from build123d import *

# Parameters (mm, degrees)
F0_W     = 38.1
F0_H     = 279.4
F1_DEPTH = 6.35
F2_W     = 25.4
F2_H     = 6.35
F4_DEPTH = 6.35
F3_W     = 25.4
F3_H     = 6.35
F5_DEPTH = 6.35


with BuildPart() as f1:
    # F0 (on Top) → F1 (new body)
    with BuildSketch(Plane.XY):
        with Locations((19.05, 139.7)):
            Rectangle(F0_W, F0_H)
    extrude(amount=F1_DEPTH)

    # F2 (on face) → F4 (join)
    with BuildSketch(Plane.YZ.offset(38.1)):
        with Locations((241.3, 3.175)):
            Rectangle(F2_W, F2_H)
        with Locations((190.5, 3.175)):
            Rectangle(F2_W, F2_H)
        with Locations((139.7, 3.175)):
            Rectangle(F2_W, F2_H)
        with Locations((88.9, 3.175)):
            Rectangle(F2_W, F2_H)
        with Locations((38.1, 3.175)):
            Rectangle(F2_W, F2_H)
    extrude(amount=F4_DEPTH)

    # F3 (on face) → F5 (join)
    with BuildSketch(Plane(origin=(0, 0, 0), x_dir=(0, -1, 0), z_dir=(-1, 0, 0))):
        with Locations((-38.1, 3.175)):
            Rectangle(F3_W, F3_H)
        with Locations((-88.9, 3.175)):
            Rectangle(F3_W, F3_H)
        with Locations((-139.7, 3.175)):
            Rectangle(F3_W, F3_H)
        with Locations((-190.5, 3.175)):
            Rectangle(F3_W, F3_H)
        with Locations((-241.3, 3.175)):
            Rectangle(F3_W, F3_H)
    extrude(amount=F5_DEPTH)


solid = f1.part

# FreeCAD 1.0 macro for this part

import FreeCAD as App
import Part
import Sketcher
from FreeCAD import Vector
Q = App.Units.Quantity

doc = App.newDocument("Part")
body = doc.addObject("PartDesign::Body", "Body")

# Sketch on XY plane
sketch1 = body.newObject("Sketcher::SketchObject", "Sketch")
sketch1.AttachmentSupport = (doc.getObject("XY_Plane"), [""])
sketch1.MapMode = "FlatFace"
sketch1.addGeometry(Part.LineSegment(Vector(0, 279, 0), Vector(0, 0, 0)), False)
sketch1.addGeometry(Part.LineSegment(Vector(0, 0, 0), Vector(38, 0, 0)), False)
sketch1.addGeometry(Part.LineSegment(Vector(38, 0, 0), Vector(38, 279, 0)), False)
sketch1.addGeometry(Part.LineSegment(Vector(38, 279, 0), Vector(0, 279, 0)), False)
sketch1.addConstraint(Sketcher.Constraint("Coincident", 0, 2, 1, 1))
sketch1.addConstraint(Sketcher.Constraint("Coincident", 1, 2, 2, 1))
sketch1.addConstraint(Sketcher.Constraint("Coincident", 2, 2, 3, 1))
sketch1.addConstraint(Sketcher.Constraint("Coincident", 3, 2, 0, 1))
sketch1.addConstraint(Sketcher.Constraint("Vertical", 0))
sketch1.addConstraint(Sketcher.Constraint("Horizontal", 1))
sketch1.addConstraint(Sketcher.Constraint("Vertical", 2))
sketch1.addConstraint(Sketcher.Constraint("Horizontal", 3))
sketch1.addConstraint(Sketcher.Constraint("Coincident", 0, 2, -1, 1))
sketch1.addConstraint(Sketcher.Constraint("DistanceY", 0, 2, 0, 1, Q("11 in")))
sketch1.addConstraint(Sketcher.Constraint("DistanceX", 1, 1, 1, 2, Q("1.5 in")))
pad1 = body.newObject("PartDesign::Pad", "Pad")
pad1.Profile = sketch1
pad1.Length = Q("0.25 in")

# Sketch on YZ plane
sketch2 = body.newObject("Sketcher::SketchObject", "Sketch001")
sketch2.AttachmentSupport = (doc.getObject("YZ_Plane"), [""])
sketch2.MapMode = "FlatFace"
sketch2.AttachmentOffset = App.Placement(Vector(0, 0, 1.5 * 25.4), App.Rotation())
sketch2.addGeometry(Part.LineSegment(Vector(229, 6, 0), Vector(229, 0, 0)), False)
sketch2.addGeometry(Part.LineSegment(Vector(229, 0, 0), Vector(254, 0, 0)), False)
sketch2.addGeometry(Part.LineSegment(Vector(254, 0, 0), Vector(254, 6, 0)), False)
sketch2.addGeometry(Part.LineSegment(Vector(254, 6, 0), Vector(229, 6, 0)), False)
sketch2.addGeometry(Part.LineSegment(Vector(178, 6, 0), Vector(178, 0, 0)), False)
sketch2.addGeometry(Part.LineSegment(Vector(178, 0, 0), Vector(203, 0, 0)), False)
sketch2.addGeometry(Part.LineSegment(Vector(203, 0, 0), Vector(203, 6, 0)), False)
sketch2.addGeometry(Part.LineSegment(Vector(203, 6, 0), Vector(178, 6, 0)), False)
sketch2.addGeometry(Part.LineSegment(Vector(127, 6, 0), Vector(127, 0, 0)), False)
sketch2.addGeometry(Part.LineSegment(Vector(127, 0, 0), Vector(152, 0, 0)), False)
sketch2.addGeometry(Part.LineSegment(Vector(152, 0, 0), Vector(152, 6, 0)), False)
sketch2.addGeometry(Part.LineSegment(Vector(152, 6, 0), Vector(127, 6, 0)), False)
sketch2.addGeometry(Part.LineSegment(Vector(76, 6, 0), Vector(76, 0, 0)), False)
sketch2.addGeometry(Part.LineSegment(Vector(76, 0, 0), Vector(102, 0, 0)), False)
sketch2.addGeometry(Part.LineSegment(Vector(102, 0, 0), Vector(102, 6, 0)), False)
sketch2.addGeometry(Part.LineSegment(Vector(102, 6, 0), Vector(76, 6, 0)), False)
sketch2.addGeometry(Part.LineSegment(Vector(25, 6, 0), Vector(25, 0, 0)), False)
sketch2.addGeometry(Part.LineSegment(Vector(25, 0, 0), Vector(51, 0, 0)), False)
sketch2.addGeometry(Part.LineSegment(Vector(51, 0, 0), Vector(51, 6, 0)), False)
sketch2.addGeometry(Part.LineSegment(Vector(51, 6, 0), Vector(25, 6, 0)), False)
sketch2.addConstraint(Sketcher.Constraint("Coincident", 0, 2, 1, 1))
sketch2.addConstraint(Sketcher.Constraint("Coincident", 1, 2, 2, 1))
sketch2.addConstraint(Sketcher.Constraint("Coincident", 2, 2, 3, 1))
sketch2.addConstraint(Sketcher.Constraint("Coincident", 3, 2, 0, 1))
sketch2.addConstraint(Sketcher.Constraint("Coincident", 4, 2, 5, 1))
sketch2.addConstraint(Sketcher.Constraint("Coincident", 5, 2, 6, 1))
sketch2.addConstraint(Sketcher.Constraint("Coincident", 6, 2, 7, 1))
sketch2.addConstraint(Sketcher.Constraint("Coincident", 7, 2, 4, 1))
sketch2.addConstraint(Sketcher.Constraint("Coincident", 8, 2, 9, 1))
sketch2.addConstraint(Sketcher.Constraint("Coincident", 9, 2, 10, 1))
sketch2.addConstraint(Sketcher.Constraint("Coincident", 10, 2, 11, 1))
sketch2.addConstraint(Sketcher.Constraint("Coincident", 11, 2, 8, 1))
sketch2.addConstraint(Sketcher.Constraint("Coincident", 12, 2, 13, 1))
sketch2.addConstraint(Sketcher.Constraint("Coincident", 13, 2, 14, 1))
sketch2.addConstraint(Sketcher.Constraint("Coincident", 14, 2, 15, 1))
sketch2.addConstraint(Sketcher.Constraint("Coincident", 15, 2, 12, 1))
sketch2.addConstraint(Sketcher.Constraint("Coincident", 16, 2, 17, 1))
sketch2.addConstraint(Sketcher.Constraint("Coincident", 17, 2, 18, 1))
sketch2.addConstraint(Sketcher.Constraint("Coincident", 18, 2, 19, 1))
sketch2.addConstraint(Sketcher.Constraint("Coincident", 19, 2, 16, 1))
sketch2.addConstraint(Sketcher.Constraint("Vertical", 0))
sketch2.addConstraint(Sketcher.Constraint("Horizontal", 1))
sketch2.addConstraint(Sketcher.Constraint("Vertical", 2))
sketch2.addConstraint(Sketcher.Constraint("Horizontal", 3))
sketch2.addConstraint(Sketcher.Constraint("Vertical", 4))
sketch2.addConstraint(Sketcher.Constraint("Horizontal", 5))
sketch2.addConstraint(Sketcher.Constraint("Vertical", 6))
sketch2.addConstraint(Sketcher.Constraint("Horizontal", 7))
sketch2.addConstraint(Sketcher.Constraint("Vertical", 8))
sketch2.addConstraint(Sketcher.Constraint("Horizontal", 9))
sketch2.addConstraint(Sketcher.Constraint("Vertical", 10))
sketch2.addConstraint(Sketcher.Constraint("Horizontal", 11))
sketch2.addConstraint(Sketcher.Constraint("Vertical", 12))
sketch2.addConstraint(Sketcher.Constraint("Horizontal", 13))
sketch2.addConstraint(Sketcher.Constraint("Vertical", 14))
sketch2.addConstraint(Sketcher.Constraint("Horizontal", 15))
sketch2.addConstraint(Sketcher.Constraint("Vertical", 16))
sketch2.addConstraint(Sketcher.Constraint("Horizontal", 17))
sketch2.addConstraint(Sketcher.Constraint("Vertical", 18))
sketch2.addConstraint(Sketcher.Constraint("Horizontal", 19))
sketch2.addConstraint(Sketcher.Constraint("PointOnObject", 0, 2, -1))
sketch2.addConstraint(Sketcher.Constraint("PointOnObject", 4, 2, -1))
sketch2.addConstraint(Sketcher.Constraint("PointOnObject", 8, 2, -1))
sketch2.addConstraint(Sketcher.Constraint("PointOnObject", 12, 2, -1))
sketch2.addConstraint(Sketcher.Constraint("PointOnObject", 16, 2, -1))
sketch2.addConstraint(Sketcher.Constraint("Horizontal", 3, 2, 6, 2))
sketch2.addConstraint(Sketcher.Constraint("Horizontal", 7, 2, 10, 2))
sketch2.addConstraint(Sketcher.Constraint("Horizontal", 11, 2, 14, 2))
sketch2.addConstraint(Sketcher.Constraint("Horizontal", 15, 2, 18, 2))
sketch2.addConstraint(Sketcher.Constraint("Equal", 3, 5))
sketch2.addConstraint(Sketcher.Constraint("Equal", 7, 9))
sketch2.addConstraint(Sketcher.Constraint("Equal", 11, 13))
sketch2.addConstraint(Sketcher.Constraint("Equal", 15, 17))
sketch2.addConstraint(Sketcher.Constraint("DistanceX", 1, 1, 1, 2, Q("1 in")))
sketch2.addConstraint(Sketcher.Constraint("DistanceX", -1, 1, 0, 2, Q("9 in")))
sketch2.addConstraint(Sketcher.Constraint("DistanceX", -1, 1, 4, 2, Q("7 in")))
sketch2.addConstraint(Sketcher.Constraint("DistanceX", -1, 1, 8, 2, Q("5 in")))
sketch2.addConstraint(Sketcher.Constraint("DistanceX", -1, 1, 12, 2, Q("3 in")))
sketch2.addConstraint(Sketcher.Constraint("DistanceX", -1, 1, 16, 2, Q("1 in")))
sketch2.addConstraint(Sketcher.Constraint("DistanceY", 0, 2, 0, 1, Q("0.25 in")))
pad2 = body.newObject("PartDesign::Pad", "Pad001")
pad2.Profile = sketch2
pad2.Length = Q("0.25 in")

# Sketch on YZ plane
sketch3 = body.newObject("Sketcher::SketchObject", "Sketch002")
sketch3.AttachmentSupport = (doc.getObject("YZ_Plane"), [""])
sketch3.MapMode = "FlatFace"
sketch3.addGeometry(Part.LineSegment(Vector(51, 6, 0), Vector(51, 0, 0)), False)
sketch3.addGeometry(Part.LineSegment(Vector(51, 0, 0), Vector(25, 0, 0)), False)
sketch3.addGeometry(Part.LineSegment(Vector(25, 0, 0), Vector(25, 6, 0)), False)
sketch3.addGeometry(Part.LineSegment(Vector(25, 6, 0), Vector(51, 6, 0)), False)
sketch3.addGeometry(Part.LineSegment(Vector(102, 6, 0), Vector(102, 0, 0)), False)
sketch3.addGeometry(Part.LineSegment(Vector(102, 0, 0), Vector(76, 0, 0)), False)
sketch3.addGeometry(Part.LineSegment(Vector(76, 0, 0), Vector(76, 6, 0)), False)
sketch3.addGeometry(Part.LineSegment(Vector(76, 6, 0), Vector(102, 6, 0)), False)
sketch3.addGeometry(Part.LineSegment(Vector(152, 6, 0), Vector(152, 0, 0)), False)
sketch3.addGeometry(Part.LineSegment(Vector(152, 0, 0), Vector(127, 0, 0)), False)
sketch3.addGeometry(Part.LineSegment(Vector(127, 0, 0), Vector(127, 6, 0)), False)
sketch3.addGeometry(Part.LineSegment(Vector(127, 6, 0), Vector(152, 6, 0)), False)
sketch3.addGeometry(Part.LineSegment(Vector(203, 6, 0), Vector(203, 0, 0)), False)
sketch3.addGeometry(Part.LineSegment(Vector(203, 0, 0), Vector(178, 0, 0)), False)
sketch3.addGeometry(Part.LineSegment(Vector(178, 0, 0), Vector(178, 6, 0)), False)
sketch3.addGeometry(Part.LineSegment(Vector(178, 6, 0), Vector(203, 6, 0)), False)
sketch3.addGeometry(Part.LineSegment(Vector(254, 6, 0), Vector(254, 0, 0)), False)
sketch3.addGeometry(Part.LineSegment(Vector(254, 0, 0), Vector(229, 0, 0)), False)
sketch3.addGeometry(Part.LineSegment(Vector(229, 0, 0), Vector(229, 6, 0)), False)
sketch3.addGeometry(Part.LineSegment(Vector(229, 6, 0), Vector(254, 6, 0)), False)
sketch3.addConstraint(Sketcher.Constraint("Coincident", 0, 2, 1, 1))
sketch3.addConstraint(Sketcher.Constraint("Coincident", 1, 2, 2, 1))
sketch3.addConstraint(Sketcher.Constraint("Coincident", 2, 2, 3, 1))
sketch3.addConstraint(Sketcher.Constraint("Coincident", 3, 2, 0, 1))
sketch3.addConstraint(Sketcher.Constraint("Coincident", 4, 2, 5, 1))
sketch3.addConstraint(Sketcher.Constraint("Coincident", 5, 2, 6, 1))
sketch3.addConstraint(Sketcher.Constraint("Coincident", 6, 2, 7, 1))
sketch3.addConstraint(Sketcher.Constraint("Coincident", 7, 2, 4, 1))
sketch3.addConstraint(Sketcher.Constraint("Coincident", 8, 2, 9, 1))
sketch3.addConstraint(Sketcher.Constraint("Coincident", 9, 2, 10, 1))
sketch3.addConstraint(Sketcher.Constraint("Coincident", 10, 2, 11, 1))
sketch3.addConstraint(Sketcher.Constraint("Coincident", 11, 2, 8, 1))
sketch3.addConstraint(Sketcher.Constraint("Coincident", 12, 2, 13, 1))
sketch3.addConstraint(Sketcher.Constraint("Coincident", 13, 2, 14, 1))
sketch3.addConstraint(Sketcher.Constraint("Coincident", 14, 2, 15, 1))
sketch3.addConstraint(Sketcher.Constraint("Coincident", 15, 2, 12, 1))
sketch3.addConstraint(Sketcher.Constraint("Coincident", 16, 2, 17, 1))
sketch3.addConstraint(Sketcher.Constraint("Coincident", 17, 2, 18, 1))
sketch3.addConstraint(Sketcher.Constraint("Coincident", 18, 2, 19, 1))
sketch3.addConstraint(Sketcher.Constraint("Coincident", 19, 2, 16, 1))
sketch3.addConstraint(Sketcher.Constraint("Vertical", 0))
sketch3.addConstraint(Sketcher.Constraint("Horizontal", 1))
sketch3.addConstraint(Sketcher.Constraint("Vertical", 2))
sketch3.addConstraint(Sketcher.Constraint("Horizontal", 3))
sketch3.addConstraint(Sketcher.Constraint("Vertical", 4))
sketch3.addConstraint(Sketcher.Constraint("Horizontal", 5))
sketch3.addConstraint(Sketcher.Constraint("Vertical", 6))
sketch3.addConstraint(Sketcher.Constraint("Horizontal", 7))
sketch3.addConstraint(Sketcher.Constraint("Vertical", 8))
sketch3.addConstraint(Sketcher.Constraint("Horizontal", 9))
sketch3.addConstraint(Sketcher.Constraint("Vertical", 10))
sketch3.addConstraint(Sketcher.Constraint("Horizontal", 11))
sketch3.addConstraint(Sketcher.Constraint("Vertical", 12))
sketch3.addConstraint(Sketcher.Constraint("Horizontal", 13))
sketch3.addConstraint(Sketcher.Constraint("Vertical", 14))
sketch3.addConstraint(Sketcher.Constraint("Horizontal", 15))
sketch3.addConstraint(Sketcher.Constraint("Vertical", 16))
sketch3.addConstraint(Sketcher.Constraint("Horizontal", 17))
sketch3.addConstraint(Sketcher.Constraint("Vertical", 18))
sketch3.addConstraint(Sketcher.Constraint("Horizontal", 19))
sketch3.addConstraint(Sketcher.Constraint("PointOnObject", 0, 2, -1))
sketch3.addConstraint(Sketcher.Constraint("PointOnObject", 4, 2, -1))
sketch3.addConstraint(Sketcher.Constraint("PointOnObject", 8, 2, -1))
sketch3.addConstraint(Sketcher.Constraint("PointOnObject", 12, 2, -1))
sketch3.addConstraint(Sketcher.Constraint("PointOnObject", 16, 2, -1))
sketch3.addConstraint(Sketcher.Constraint("Horizontal", 3, 2, 6, 2))
sketch3.addConstraint(Sketcher.Constraint("Horizontal", 7, 2, 10, 2))
sketch3.addConstraint(Sketcher.Constraint("Horizontal", 11, 2, 14, 2))
sketch3.addConstraint(Sketcher.Constraint("Horizontal", 15, 2, 18, 2))
sketch3.addConstraint(Sketcher.Constraint("Equal", 3, 5))
sketch3.addConstraint(Sketcher.Constraint("Equal", 7, 9))
sketch3.addConstraint(Sketcher.Constraint("Equal", 11, 13))
sketch3.addConstraint(Sketcher.Constraint("Equal", 15, 17))
sketch3.addConstraint(Sketcher.Constraint("DistanceX", 1, 2, 1, 1, Q("1 in")))
sketch3.addConstraint(Sketcher.Constraint("DistanceX", -1, 1, 0, 2, Q("2 in")))
sketch3.addConstraint(Sketcher.Constraint("DistanceX", -1, 1, 4, 2, Q("4 in")))
sketch3.addConstraint(Sketcher.Constraint("DistanceX", -1, 1, 8, 2, Q("6 in")))
sketch3.addConstraint(Sketcher.Constraint("DistanceX", -1, 1, 12, 2, Q("8 in")))
sketch3.addConstraint(Sketcher.Constraint("DistanceX", -1, 1, 16, 2, Q("10 in")))
sketch3.addConstraint(Sketcher.Constraint("DistanceY", 0, 2, 0, 1, Q("0.25 in")))
pad3 = body.newObject("PartDesign::Pad", "Pad002")
pad3.Profile = sketch3
pad3.Length = Q("0.25 in")
pad3.Reversed = True

doc.recompute()
